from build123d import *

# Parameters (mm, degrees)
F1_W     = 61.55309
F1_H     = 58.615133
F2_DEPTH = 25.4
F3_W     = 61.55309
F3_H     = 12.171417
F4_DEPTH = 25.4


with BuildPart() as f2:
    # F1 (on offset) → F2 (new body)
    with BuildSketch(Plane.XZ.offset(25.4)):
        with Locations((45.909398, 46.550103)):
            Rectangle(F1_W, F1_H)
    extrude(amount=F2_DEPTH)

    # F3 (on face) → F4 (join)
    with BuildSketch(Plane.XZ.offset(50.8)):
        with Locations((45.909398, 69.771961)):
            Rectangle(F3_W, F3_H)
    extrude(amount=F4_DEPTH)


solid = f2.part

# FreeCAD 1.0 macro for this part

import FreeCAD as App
import Part
import Sketcher
from FreeCAD import Vector
Q = App.Units.Quantity

doc = App.newDocument("Part")
body = doc.addObject("PartDesign::Body", "Body")

sketch1 = body.newObject("Sketcher::SketchObject", "Sketch")
sketch1.AttachmentSupport = (doc.getObject("XZ_Plane"), [""])
sketch1.MapMode = "FlatFace"
sketch1.AttachmentOffset = App.Placement(Vector(0, 0, 1 * 25.4), App.Rotation())
sketch1.addGeometry([
    Part.LineSegment(Vector(15, 76, 0), Vector(15, 17, 0)),
    Part.LineSegment(Vector(15, 17, 0), Vector(77, 17, 0)),
    Part.LineSegment(Vector(77, 17, 0), Vector(77, 76, 0)),
    Part.LineSegment(Vector(77, 76, 0), Vector(15, 76, 0)),
], False)
sketch1.addConstraint([
    Sketcher.Constraint("Coincident", 0, 2, 1, 1),
    Sketcher.Constraint("Coincident", 1, 2, 2, 1),
    Sketcher.Constraint("Coincident", 2, 2, 3, 1),
    Sketcher.Constraint("Coincident", 3, 2, 0, 1),
    Sketcher.Constraint("Vertical", 0),
    Sketcher.Constraint("Horizontal", 1),
    Sketcher.Constraint("Vertical", 2),
    Sketcher.Constraint("Horizontal", 3),
    Sketcher.Constraint("DistanceX", 1, 1, 1, 2, 61.55309),
    Sketcher.Constraint("DistanceY", 0, 2, 0, 1, 58.615133),
    Sketcher.Constraint("DistanceY", -1, 1, 2, 2, 75.85767),
    Sketcher.Constraint("DistanceX", -1, 1, 0, 2, 15.132853),
])
pad1 = body.newObject("PartDesign::Pad", "Pad")
pad1.Profile = sketch1
pad1.Length = Q("1 in")

sketch2 = body.newObject("Sketcher::SketchObject", "Sketch001")
sketch2.AttachmentSupport = (doc.getObject("XZ_Plane"), [""])
sketch2.MapMode = "FlatFace"
sketch2.AttachmentOffset = App.Placement(Vector(0, 0, 2 * 25.4), App.Rotation())
sketch2.addGeometry([
    Part.LineSegment(Vector(15, 76, 0), Vector(15, 64, 0)),
    Part.LineSegment(Vector(15, 64, 0), Vector(77, 64, 0)),
    Part.LineSegment(Vector(77, 64, 0), Vector(77, 76, 0)),
    Part.LineSegment(Vector(77, 76, 0), Vector(15, 76, 0)),
], False)
sketch2.addConstraint([
    Sketcher.Constraint("Coincident", 0, 2, 1, 1),
    Sketcher.Constraint("Coincident", 1, 2, 2, 1),
    Sketcher.Constraint("Coincident", 2, 2, 3, 1),
    Sketcher.Constraint("Coincident", 3, 2, 0, 1),
    Sketcher.Constraint("Vertical", 0),
    Sketcher.Constraint("Horizontal", 1),
    Sketcher.Constraint("Vertical", 2),
    Sketcher.Constraint("Horizontal", 3),
    Sketcher.Constraint("DistanceX", 1, 1, 1, 2, 61.55309),
    Sketcher.Constraint("DistanceY", 0, 2, 0, 1, 12.171417),
    Sketcher.Constraint("DistanceY", -1, 1, 2, 2, 75.85767),
    Sketcher.Constraint("DistanceX", -1, 1, 0, 2, 15.132853),
])
pad2 = body.newObject("PartDesign::Pad", "Pad001")
pad2.Profile = sketch2
pad2.Length = Q("1 in")

doc.recompute()
